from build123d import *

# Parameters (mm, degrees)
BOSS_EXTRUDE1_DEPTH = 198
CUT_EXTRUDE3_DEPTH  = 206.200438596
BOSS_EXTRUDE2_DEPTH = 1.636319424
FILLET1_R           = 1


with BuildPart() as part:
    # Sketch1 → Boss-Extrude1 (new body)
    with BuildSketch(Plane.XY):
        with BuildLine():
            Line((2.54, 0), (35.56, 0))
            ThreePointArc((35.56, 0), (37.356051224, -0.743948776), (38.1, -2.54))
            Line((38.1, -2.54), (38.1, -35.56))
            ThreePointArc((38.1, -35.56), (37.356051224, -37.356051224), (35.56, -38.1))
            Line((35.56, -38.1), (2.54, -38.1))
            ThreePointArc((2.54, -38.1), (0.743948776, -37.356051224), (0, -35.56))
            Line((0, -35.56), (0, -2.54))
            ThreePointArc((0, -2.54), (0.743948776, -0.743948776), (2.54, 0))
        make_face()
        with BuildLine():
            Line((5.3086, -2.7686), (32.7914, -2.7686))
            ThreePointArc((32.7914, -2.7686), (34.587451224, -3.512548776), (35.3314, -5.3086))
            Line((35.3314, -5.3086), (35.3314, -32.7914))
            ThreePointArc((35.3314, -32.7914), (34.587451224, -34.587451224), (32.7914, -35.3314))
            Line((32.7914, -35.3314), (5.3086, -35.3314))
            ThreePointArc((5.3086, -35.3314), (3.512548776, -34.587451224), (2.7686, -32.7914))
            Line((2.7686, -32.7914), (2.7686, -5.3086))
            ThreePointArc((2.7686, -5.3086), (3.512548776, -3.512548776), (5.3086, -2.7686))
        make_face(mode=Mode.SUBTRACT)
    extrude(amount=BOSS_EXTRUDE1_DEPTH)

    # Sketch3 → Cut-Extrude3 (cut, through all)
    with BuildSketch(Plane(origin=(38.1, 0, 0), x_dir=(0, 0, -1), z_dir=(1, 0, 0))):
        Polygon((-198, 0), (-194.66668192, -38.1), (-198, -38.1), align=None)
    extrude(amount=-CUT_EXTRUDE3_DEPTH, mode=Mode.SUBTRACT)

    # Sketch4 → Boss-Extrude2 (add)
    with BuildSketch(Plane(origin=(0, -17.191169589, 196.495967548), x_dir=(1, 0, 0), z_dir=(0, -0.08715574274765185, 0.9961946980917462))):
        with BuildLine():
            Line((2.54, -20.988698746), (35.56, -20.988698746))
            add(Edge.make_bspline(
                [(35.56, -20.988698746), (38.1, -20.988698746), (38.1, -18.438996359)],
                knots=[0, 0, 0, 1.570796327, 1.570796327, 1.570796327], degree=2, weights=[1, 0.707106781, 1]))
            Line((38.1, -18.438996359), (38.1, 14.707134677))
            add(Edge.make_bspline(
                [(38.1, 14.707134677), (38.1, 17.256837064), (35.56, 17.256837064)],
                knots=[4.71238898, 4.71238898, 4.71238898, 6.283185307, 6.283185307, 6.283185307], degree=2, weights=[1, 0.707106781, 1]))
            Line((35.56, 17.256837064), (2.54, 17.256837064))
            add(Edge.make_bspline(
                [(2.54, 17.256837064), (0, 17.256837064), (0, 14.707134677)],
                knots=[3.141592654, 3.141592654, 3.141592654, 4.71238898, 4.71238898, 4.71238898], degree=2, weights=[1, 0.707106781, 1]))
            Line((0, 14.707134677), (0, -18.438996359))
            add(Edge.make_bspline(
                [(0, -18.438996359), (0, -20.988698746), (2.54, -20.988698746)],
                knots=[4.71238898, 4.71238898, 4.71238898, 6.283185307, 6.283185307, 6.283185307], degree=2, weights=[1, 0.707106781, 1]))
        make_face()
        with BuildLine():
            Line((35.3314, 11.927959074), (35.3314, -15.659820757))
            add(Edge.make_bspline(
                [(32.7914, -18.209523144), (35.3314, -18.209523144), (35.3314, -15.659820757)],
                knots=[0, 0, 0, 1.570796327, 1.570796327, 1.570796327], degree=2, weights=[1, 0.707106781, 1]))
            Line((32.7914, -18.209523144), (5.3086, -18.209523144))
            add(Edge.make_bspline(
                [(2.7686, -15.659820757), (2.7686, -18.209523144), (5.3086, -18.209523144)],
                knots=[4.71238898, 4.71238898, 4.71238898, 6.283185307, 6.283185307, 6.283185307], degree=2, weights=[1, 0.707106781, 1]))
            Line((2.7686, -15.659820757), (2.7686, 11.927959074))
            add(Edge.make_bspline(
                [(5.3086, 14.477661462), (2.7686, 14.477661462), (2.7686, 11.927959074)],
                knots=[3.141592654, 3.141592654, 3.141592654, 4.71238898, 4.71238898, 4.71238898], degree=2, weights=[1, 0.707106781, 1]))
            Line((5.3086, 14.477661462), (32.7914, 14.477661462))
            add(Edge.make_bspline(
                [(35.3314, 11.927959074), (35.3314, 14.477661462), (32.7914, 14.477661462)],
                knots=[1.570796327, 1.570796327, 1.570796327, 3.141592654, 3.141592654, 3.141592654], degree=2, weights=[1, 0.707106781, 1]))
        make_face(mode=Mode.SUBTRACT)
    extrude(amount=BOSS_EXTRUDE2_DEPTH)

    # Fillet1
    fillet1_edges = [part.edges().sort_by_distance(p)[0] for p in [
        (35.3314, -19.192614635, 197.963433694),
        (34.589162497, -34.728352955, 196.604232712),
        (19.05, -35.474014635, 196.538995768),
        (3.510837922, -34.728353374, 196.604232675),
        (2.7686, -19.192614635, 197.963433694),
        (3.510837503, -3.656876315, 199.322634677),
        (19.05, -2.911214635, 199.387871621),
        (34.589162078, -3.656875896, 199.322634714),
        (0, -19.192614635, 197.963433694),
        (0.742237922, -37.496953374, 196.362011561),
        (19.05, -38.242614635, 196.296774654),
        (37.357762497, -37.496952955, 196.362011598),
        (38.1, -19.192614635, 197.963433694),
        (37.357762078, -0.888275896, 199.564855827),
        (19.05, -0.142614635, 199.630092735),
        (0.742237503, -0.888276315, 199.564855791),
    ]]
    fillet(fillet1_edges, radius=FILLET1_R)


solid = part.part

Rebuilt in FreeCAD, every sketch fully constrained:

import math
import FreeCAD as App
import Part
import Sketcher

V = App.Vector
Q = App.Units.Quantity


def edges_at(feature, points):
    """Names of the edges that pass closest to the given points."""
    edges = feature.Shape.Edges
    near = lambda p: min(range(len(edges)), key=lambda i: edges[i].distToShape(Part.Vertex(*p))[0])
    return sorted({f"Edge{near(p) + 1}" for p in points})


def add_polygon(sketch, points):
    """Adds a closed chain of lines whose ends are joined by coincident constraints."""
    first, n = sketch.GeometryCount, len(points)
    for a, b in zip(points, points[1:] + points[:1]):
        sketch.addGeometry(Part.LineSegment(App.Vector(*a, 0), App.Vector(*b, 0)), False)
    for i in range(n):
        sketch.addConstraint(Sketcher.Constraint("Coincident", first + i, 2, first + (i + 1) % n, 1))

doc = App.newDocument("Part")
body = doc.addObject("PartDesign::Body", "Body")

# Sketch on XY plane
sketch1 = body.newObject("Sketcher::SketchObject", "Sketch")
sketch1.AttachmentSupport = (doc.getObject("XY_Plane"), [""])
sketch1.MapMode = "FlatFace"
sketch1.addGeometry([
    Part.LineSegment(V(35.6, 0, 0), V(2.5, 0, 0)),  # 0
    Part.ArcOfCircle(Part.Circle(V(2.5, -2.5, 0), V(0, 0, 1), 2.5), math.radians(90), math.radians(180)),  # 1
    Part.LineSegment(V(0, -2.5, 0), V(0, -35.6, 0)),  # 2
    Part.ArcOfCircle(Part.Circle(V(2.5, -35.6, 0), V(0, 0, 1), 2.5), math.radians(-180), math.radians(-90)),  # 3
    Part.LineSegment(V(2.5, -38.1, 0), V(35.6, -38.1, 0)),  # 4
    Part.ArcOfCircle(Part.Circle(V(35.6, -35.6, 0), V(0, 0, 1), 2.5), math.radians(-90), math.radians(0)),  # 5
    Part.LineSegment(V(38.1, -35.6, 0), V(38.1, -2.5, 0)),  # 6
    Part.ArcOfCircle(Part.Circle(V(35.6, -2.5, 0), V(0, 0, 1), 2.5), math.radians(0), math.radians(90)),  # 7
    Part.LineSegment(V(5.3, -2.8, 0), V(32.8, -2.8, 0)),  # 8
    Part.ArcOfCircle(Part.Circle(V(32.8, -5.3, 0), V(0, 0, 1), 2.5), math.radians(0), math.radians(90)),  # 9
    Part.LineSegment(V(35.3, -5.3, 0), V(35.3, -32.8, 0)),  # 10
    Part.ArcOfCircle(Part.Circle(V(32.8, -32.8, 0), V(0, 0, 1), 2.5), math.radians(-90), math.radians(0)),  # 11
    Part.LineSegment(V(32.8, -35.3, 0), V(5.3, -35.3, 0)),  # 12
    Part.ArcOfCircle(Part.Circle(V(5.3, -32.8, 0), V(0, 0, 1), 2.5), math.radians(-180), math.radians(-90)),  # 13
    Part.LineSegment(V(2.8, -32.8, 0), V(2.8, -5.3, 0)),  # 14
    Part.ArcOfCircle(Part.Circle(V(5.3, -5.3, 0), V(0, 0, 1), 2.5), math.radians(90), math.radians(180)),  # 15
], False)
sketch1.addConstraint([
    Sketcher.Constraint("Tangent", 0, 2, 1, 1),
    Sketcher.Constraint("Tangent", 1, 2, 2, 1),
    Sketcher.Constraint("Tangent", 2, 2, 3, 1),
    Sketcher.Constraint("Tangent", 3, 2, 4, 1),
    Sketcher.Constraint("Tangent", 4, 2, 5, 1),
    Sketcher.Constraint("Tangent", 5, 2, 6, 1),
    Sketcher.Constraint("Tangent", 6, 2, 7, 1),
    Sketcher.Constraint("Tangent", 7, 2, 0, 1),
    Sketcher.Constraint("Tangent", 8, 2, 9, 2),
    Sketcher.Constraint("Tangent", 9, 1, 10, 1),
    Sketcher.Constraint("Tangent", 10, 2, 11, 2),
    Sketcher.Constraint("Tangent", 11, 1, 12, 1),
    Sketcher.Constraint("Tangent", 12, 2, 13, 2),
    Sketcher.Constraint("Tangent", 13, 1, 14, 1),
    Sketcher.Constraint("Tangent", 14, 2, 15, 2),
    Sketcher.Constraint("Tangent", 15, 1, 8, 1),
    Sketcher.Constraint("Horizontal", 0),
    Sketcher.Constraint("Vertical", 2),
    Sketcher.Constraint("Horizontal", 4),
    Sketcher.Constraint("Vertical", 6),
    Sketcher.Constraint("Horizontal", 8),
    Sketcher.Constraint("Vertical", 10),
    Sketcher.Constraint("Horizontal", 12),
    Sketcher.Constraint("Vertical", 14),
    Sketcher.Constraint("Equal", 1, 3),
    Sketcher.Constraint("Equal", 3, 5),
    Sketcher.Constraint("Equal", 5, 7),
    Sketcher.Constraint("Equal", 7, 9),
    Sketcher.Constraint("Equal", 9, 11),
    Sketcher.Constraint("Equal", 11, 13),
    Sketcher.Constraint("Equal", 13, 15),
    Sketcher.Constraint("PointOnObject", 0, 2, -1),
    Sketcher.Constraint("PointOnObject", 1, 2, -2),
    Sketcher.Constraint("Equal", 4, 2),
    Sketcher.Constraint("Equal", 12, 10),
    Sketcher.Constraint("Radius", 1, Q("0.1 in")),
    Sketcher.Constraint("DistanceX", 0, 2, 0, 1, Q("1.3 in")),
    Sketcher.Constraint("DistanceX", 8, 1, 8, 2, Q("1.082 in")),
    Sketcher.Constraint("DistanceX", -1, 1, 9, 3, Q("1.291 in")),
    Sketcher.Constraint("DistanceY", 9, 3, -1, 1, Q("0.209 in")),
])
pad1 = body.newObject("PartDesign::Pad", "Pad")
pad1.Profile = sketch1
pad1.Length = 198

# Sketch on YZ plane
sketch2 = body.newObject("Sketcher::SketchObject", "Sketch001")
sketch2.AttachmentSupport = (doc.getObject("YZ_Plane"), [""])
sketch2.MapMode = "FlatFace"
sketch2.AttachmentOffset = App.Placement(V(0, 0, 1.5 * 25.4), App.Rotation())
add_polygon(sketch2, [(-38.1, 194.7), (0, 198), (-38.1, 198)])  # lines 0-2
sketch2.addConstraint([
    Sketcher.Constraint("Horizontal", 1),
    Sketcher.Constraint("Vertical", 2),
    Sketcher.Constraint("PointOnObject", 0, 2, -2),
    Sketcher.Constraint("DistanceX", 1, 2, 1, 1, Q("1.5 in")),
    Sketcher.Constraint("Angle", 0, Q("5 deg")),
    Sketcher.Constraint("DistanceY", -1, 1, 0, 2, Q("198 mm")),
])
pocket1 = body.newObject("PartDesign::Pocket", "Pocket")
pocket1.Profile = sketch2
pocket1.Type = "ThroughAll"

# Sketch on an angled plane
sketch3 = body.newObject("Sketcher::SketchObject", "Sketch002")
sketch3.Placement = App.Placement(V(0, -17.19117, 196.495968), App.Rotation(V(1, 0, 0), V(0, 0.996194698, 0.087155743), V(0, -0.087155743, 0.996194698), "ZXY"))
sketch3.addGeometry([
    Part.LineSegment(V(2.54, -20.988699, 0), V(35.56, -20.988699, 0)),  # 0
    Part.BSplineCurve([V(35.56, -20.988699, 0), V(38.1, -20.988699, 0), V(38.1, -18.438996, 0)], [3, 3], [0, 1.570796327], False, 2, [1, 0.707106781, 1], False),  # 1
    Part.LineSegment(V(38.1, -18.438996, 0), V(38.1, 14.707135, 0)),  # 2
    Part.BSplineCurve([V(38.1, 14.707135, 0), V(38.1, 17.256837, 0), V(35.56, 17.256837, 0)], [3, 3], [4.71238898, 6.283185307], False, 2, [1, 0.707106781, 1], False),  # 3
    Part.LineSegment(V(35.56, 17.256837, 0), V(2.54, 17.256837, 0)),  # 4
    Part.BSplineCurve([V(2.54, 17.256837, 0), V(0, 17.256837, 0), V(0, 14.707135, 0)], [3, 3], [3.141592654, 4.71238898], False, 2, [1, 0.707106781, 1], False),  # 5
    Part.LineSegment(V(0, 14.707135, 0), V(0, -18.438996, 0)),  # 6
    Part.BSplineCurve([V(0, -18.438996, 0), V(0, -20.988699, 0), V(2.54, -20.988699, 0)], [3, 3], [4.71238898, 6.283185307], False, 2, [1, 0.707106781, 1], False),  # 7
    Part.BSplineCurve([V(35.3314, 11.927959, 0), V(35.3314, 14.477661, 0), V(32.7914, 14.477661, 0)], [3, 3], [1.570796327, 3.141592654], False, 2, [1, 0.707106781, 1], False),  # 8
    Part.LineSegment(V(35.3314, 11.927959, 0), V(35.3314, -15.659821, 0)),  # 9
    Part.BSplineCurve([V(32.7914, -18.209523, 0), V(35.3314, -18.209523, 0), V(35.3314, -15.659821, 0)], [3, 3], [0, 1.570796327], False, 2, [1, 0.707106781, 1], False),  # 10
    Part.LineSegment(V(32.7914, -18.209523, 0), V(5.3086, -18.209523, 0)),  # 11
    Part.BSplineCurve([V(2.7686, -15.659821, 0), V(2.7686, -18.209523, 0), V(5.3086, -18.209523, 0)], [3, 3], [4.71238898, 6.283185307], False, 2, [1, 0.707106781, 1], False),  # 12
    Part.LineSegment(V(2.7686, -15.659821, 0), V(2.7686, 11.927959, 0)),  # 13
    Part.BSplineCurve([V(5.3086, 14.477661, 0), V(2.7686, 14.477661, 0), V(2.7686, 11.927959, 0)], [3, 3], [3.141592654, 4.71238898], False, 2, [1, 0.707106781, 1], False),  # 14
    Part.LineSegment(V(5.3086, 14.477661, 0), V(32.7914, 14.477661, 0)),  # 15
], False)
sketch3.addConstraint([
    Sketcher.Constraint("Block", 1),
    Sketcher.Constraint("Block", 3),
    Sketcher.Constraint("Block", 5),
    Sketcher.Constraint("Block", 7),
    Sketcher.Constraint("Block", 8),
    Sketcher.Constraint("Block", 10),
    Sketcher.Constraint("Block", 12),
    Sketcher.Constraint("Block", 14),
    Sketcher.Constraint("Coincident", 0, 2, 1, 1),
    Sketcher.Constraint("Coincident", 1, 2, 2, 1),
    Sketcher.Constraint("Coincident", 2, 2, 3, 1),
    Sketcher.Constraint("Coincident", 3, 2, 4, 1),
    Sketcher.Constraint("Coincident", 4, 2, 5, 1),
    Sketcher.Constraint("Coincident", 5, 2, 6, 1),
    Sketcher.Constraint("Coincident", 6, 2, 7, 1),
    Sketcher.Constraint("Coincident", 7, 2, 0, 1),
    Sketcher.Constraint("Coincident", 8, 1, 9, 1),
    Sketcher.Constraint("Coincident", 9, 2, 10, 2),
    Sketcher.Constraint("Coincident", 10, 1, 11, 1),
    Sketcher.Constraint("Coincident", 11, 2, 12, 2),
    Sketcher.Constraint("Coincident", 12, 1, 13, 1),
    Sketcher.Constraint("Coincident", 13, 2, 14, 2),
    Sketcher.Constraint("Coincident", 14, 1, 15, 1),
    Sketcher.Constraint("Coincident", 15, 2, 8, 2),
])
pad2 = body.newObject("PartDesign::Pad", "Pad001")
pad2.Profile = sketch3
pad2.Length = 1.636319
doc.recompute()

fillet = body.newObject("PartDesign::Fillet", "Fillet")
fillet.Base = (pad2, edges_at(pad2, [
    (35.331, -19.193, 197.963),
    (34.589, -34.728, 196.604),
    (19.05, -35.474, 196.539),
    (3.511, -34.728, 196.604),
    (2.769, -19.193, 197.963),
    (3.511, -3.657, 199.323),
    (19.05, -2.911, 199.388),
    (34.589, -3.657, 199.323),
    (0, -19.193, 197.963),
    (0.742, -37.497, 196.362),
    (19.05, -38.243, 196.297),
    (37.358, -37.497, 196.362),
    (38.1, -19.193, 197.963),
    (37.358, -0.888, 199.565),
    (19.05, -0.143, 199.63),
    (0.742, -0.888, 199.565),
]))
fillet.Radius = 1

doc.recompute()
